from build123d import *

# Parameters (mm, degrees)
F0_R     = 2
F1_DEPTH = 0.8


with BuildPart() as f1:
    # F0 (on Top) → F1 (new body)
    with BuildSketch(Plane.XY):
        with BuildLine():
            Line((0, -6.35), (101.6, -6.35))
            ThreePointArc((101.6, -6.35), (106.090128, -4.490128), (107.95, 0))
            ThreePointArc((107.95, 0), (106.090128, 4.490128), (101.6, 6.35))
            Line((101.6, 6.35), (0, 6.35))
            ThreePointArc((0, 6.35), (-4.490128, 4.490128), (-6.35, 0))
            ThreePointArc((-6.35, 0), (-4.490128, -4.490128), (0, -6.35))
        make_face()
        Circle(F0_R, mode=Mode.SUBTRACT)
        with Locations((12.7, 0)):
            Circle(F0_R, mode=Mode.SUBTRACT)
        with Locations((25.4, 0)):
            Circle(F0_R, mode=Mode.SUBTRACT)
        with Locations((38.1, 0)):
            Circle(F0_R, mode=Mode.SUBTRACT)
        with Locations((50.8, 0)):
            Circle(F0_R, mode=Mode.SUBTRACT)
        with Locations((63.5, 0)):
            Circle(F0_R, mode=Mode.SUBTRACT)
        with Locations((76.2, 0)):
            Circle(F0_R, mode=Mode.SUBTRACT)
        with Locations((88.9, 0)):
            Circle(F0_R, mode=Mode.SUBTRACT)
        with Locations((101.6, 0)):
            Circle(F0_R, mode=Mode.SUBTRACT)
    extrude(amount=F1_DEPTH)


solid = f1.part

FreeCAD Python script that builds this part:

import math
import FreeCAD as App
import Part
import Sketcher

V = App.Vector
Q = App.Units.Quantity

doc = App.newDocument("Part")
body = doc.addObject("PartDesign::Body", "Body")

# Sketch on XY plane
sketch1 = body.newObject("Sketcher::SketchObject", "Sketch")
sketch1.AttachmentSupport = (doc.getObject("XY_Plane"), [""])
sketch1.MapMode = "FlatFace"
sketch1.addGeometry(Part.LineSegment(V(0, -6.35, 0), V(101.6, -6.35, 0)), False)
sketch1.addGeometry(Part.ArcOfCircle(Part.Circle(V(101.6, 0, 0), V(0, 0, 1), 6.35), math.radians(-89.999998), math.radians(-0.000002)), False)
sketch1.addGeometry(Part.ArcOfCircle(Part.Circle(V(101.6, 0, 0), V(0, 0, 1), 6.35), math.radians(0.000002), math.radians(89.999998)), False)
sketch1.addGeometry(Part.LineSegment(V(101.6, 6.35, 0), V(0, 6.35, 0)), False)
sketch1.addGeometry(Part.ArcOfCircle(Part.Circle(V(0, 0, 0), V(0, 0, 1), 6.35), math.radians(90.000002), math.radians(179.999998)), False)
sketch1.addGeometry(Part.ArcOfCircle(Part.Circle(V(0, 0, 0), V(0, 0, 1), 6.35), math.radians(-179.999998), math.radians(-90.000002)), False)
sketch1.addGeometry(Part.Circle(V(0, 0, 0), V(0, 0, 1), 2), False)
sketch1.addGeometry(Part.Circle(V(12.7, 0, 0), V(0, 0, 1), 2), False)
sketch1.addGeometry(Part.Circle(V(25.4, 0, 0), V(0, 0, 1), 2), False)
sketch1.addGeometry(Part.Circle(V(38.1, 0, 0), V(0, 0, 1), 2), False)
sketch1.addGeometry(Part.Circle(V(50.8, 0, 0), V(0, 0, 1), 2), False)
sketch1.addGeometry(Part.Circle(V(63.5, 0, 0), V(0, 0, 1), 2), False)
sketch1.addGeometry(Part.Circle(V(76.2, 0, 0), V(0, 0, 1), 2), False)
sketch1.addGeometry(Part.Circle(V(88.9, 0, 0), V(0, 0, 1), 2), False)
sketch1.addGeometry(Part.Circle(V(101.6, 0, 0), V(0, 0, 1), 2), False)
sketch1.addConstraint(Sketcher.Constraint("Tangent", 0, 2, 1, 1))
sketch1.addConstraint(Sketcher.Constraint("Tangent", 1, 2, 2, 1))
sketch1.addConstraint(Sketcher.Constraint("Tangent", 2, 2, 3, 1))
sketch1.addConstraint(Sketcher.Constraint("Tangent", 3, 2, 4, 1))
sketch1.addConstraint(Sketcher.Constraint("Tangent", 4, 2, 5, 1))
sketch1.addConstraint(Sketcher.Constraint("Tangent", 5, 2, 0, 1))
sketch1.addConstraint(Sketcher.Constraint("Horizontal", 0))
sketch1.addConstraint(Sketcher.Constraint("Horizontal", 3))
sketch1.addConstraint(Sketcher.Constraint("Coincident", 4, 3, -1, 1))
sketch1.addConstraint(Sketcher.Constraint("Coincident", 6, 3, -1, 1))
sketch1.addConstraint(Sketcher.Constraint("Coincident", 14, 3, 1, 3))
sketch1.addConstraint(Sketcher.Constraint("Equal", 1, 2))
sketch1.addConstraint(Sketcher.Constraint("Equal", 2, 4))
sketch1.addConstraint(Sketcher.Constraint("Equal", 6, 7))
sketch1.addConstraint(Sketcher.Constraint("Equal", 7, 8))
sketch1.addConstraint(Sketcher.Constraint("Equal", 8, 9))
sketch1.addConstraint(Sketcher.Constraint("Equal", 9, 10))
sketch1.addConstraint(Sketcher.Constraint("Equal", 10, 11))
sketch1.addConstraint(Sketcher.Constraint("Equal", 11, 12))
sketch1.addConstraint(Sketcher.Constraint("Equal", 12, 13))
sketch1.addConstraint(Sketcher.Constraint("Equal", 13, 14))
sketch1.addConstraint(Sketcher.Constraint("PointOnObject", 7, 3, -1))
sketch1.addConstraint(Sketcher.Constraint("PointOnObject", 8, 3, -1))
sketch1.addConstraint(Sketcher.Constraint("PointOnObject", 9, 3, -1))
sketch1.addConstraint(Sketcher.Constraint("PointOnObject", 10, 3, -1))
sketch1.addConstraint(Sketcher.Constraint("PointOnObject", 11, 3, -1))
sketch1.addConstraint(Sketcher.Constraint("PointOnObject", 12, 3, -1))
sketch1.addConstraint(Sketcher.Constraint("PointOnObject", 13, 3, -1))
sketch1.addConstraint(Sketcher.Constraint("PointOnObject", 1, 2, -1))
sketch1.addConstraint(Sketcher.Constraint("PointOnObject", 4, 2, -1))
sketch1.addConstraint(Sketcher.Constraint("Diameter", 6, Q("4 mm")))
sketch1.addConstraint(Sketcher.Constraint("Radius", 1, Q("6.35 mm")))
sketch1.addConstraint(Sketcher.Constraint("DistanceX", 0, 1, 0, 2, Q("101.6 mm")))
sketch1.addConstraint(Sketcher.Constraint("DistanceX", -1, 1, 7, 3, Q("12.7 mm")))
sketch1.addConstraint(Sketcher.Constraint("DistanceX", -1, 1, 8, 3, Q("25.4 mm")))
sketch1.addConstraint(Sketcher.Constraint("DistanceX", -1, 1, 9, 3, Q("38.1 mm")))
sketch1.addConstraint(Sketcher.Constraint("DistanceX", -1, 1, 10, 3, Q("50.8 mm")))
sketch1.addConstraint(Sketcher.Constraint("DistanceX", -1, 1, 11, 3, Q("63.5 mm")))
sketch1.addConstraint(Sketcher.Constraint("DistanceX", -1, 1, 12, 3, Q("76.2 mm")))
sketch1.addConstraint(Sketcher.Constraint("DistanceX", -1, 1, 13, 3, Q("88.9 mm")))
pad1 = body.newObject("PartDesign::Pad", "Pad")
pad1.Profile = sketch1
pad1.Length = 0.8

doc.recompute()
